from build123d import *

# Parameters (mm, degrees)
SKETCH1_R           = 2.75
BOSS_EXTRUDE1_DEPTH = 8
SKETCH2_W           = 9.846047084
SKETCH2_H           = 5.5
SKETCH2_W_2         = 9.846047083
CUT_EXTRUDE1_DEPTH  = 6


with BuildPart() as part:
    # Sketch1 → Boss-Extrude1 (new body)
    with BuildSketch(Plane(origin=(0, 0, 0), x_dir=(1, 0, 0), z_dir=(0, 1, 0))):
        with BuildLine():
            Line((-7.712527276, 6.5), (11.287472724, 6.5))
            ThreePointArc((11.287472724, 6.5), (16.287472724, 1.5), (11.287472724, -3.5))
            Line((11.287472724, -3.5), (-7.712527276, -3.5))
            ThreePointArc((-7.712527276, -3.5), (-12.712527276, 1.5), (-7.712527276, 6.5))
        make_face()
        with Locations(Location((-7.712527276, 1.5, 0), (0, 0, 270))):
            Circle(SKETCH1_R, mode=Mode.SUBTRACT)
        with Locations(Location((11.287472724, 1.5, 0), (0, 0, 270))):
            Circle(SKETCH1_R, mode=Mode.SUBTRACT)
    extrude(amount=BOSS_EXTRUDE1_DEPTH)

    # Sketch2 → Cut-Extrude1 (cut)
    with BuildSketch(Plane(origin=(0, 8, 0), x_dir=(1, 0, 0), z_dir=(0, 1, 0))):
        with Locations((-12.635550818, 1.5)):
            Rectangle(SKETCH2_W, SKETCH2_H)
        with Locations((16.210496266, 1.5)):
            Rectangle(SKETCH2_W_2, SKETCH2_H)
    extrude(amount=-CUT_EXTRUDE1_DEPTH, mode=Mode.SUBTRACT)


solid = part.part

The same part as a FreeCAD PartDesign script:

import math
import FreeCAD as App
import Part
import Sketcher

V = App.Vector

doc = App.newDocument("Part")
body = doc.addObject("PartDesign::Body", "Body")

sketch1 = body.newObject("Sketcher::SketchObject", "Sketch")
sketch1.AttachmentSupport = (doc.getObject("XZ_Plane"), [""])
sketch1.MapMode = "FlatFace"
sketch1.addGeometry(Part.LineSegment(V(11.3, -6.5, 0), V(-7.7, -6.5, 0)), False)
sketch1.addGeometry(Part.ArcOfCircle(Part.Circle(V(-7.7, -1.5, 0), V(0, 0, 1), 5), math.radians(90), math.radians(270)), False)
sketch1.addGeometry(Part.LineSegment(V(-7.7, 3.5, 0), V(11.3, 3.5, 0)), False)
sketch1.addGeometry(Part.ArcOfCircle(Part.Circle(V(11.3, -1.5, 0), V(0, 0, 1), 5), math.radians(-90), math.radians(90)), False)
sketch1.addGeometry(Part.Circle(V(11.3, -1.5, 0), V(0, 0, 1), 2.8), False)
sketch1.addGeometry(Part.Circle(V(-7.7, -1.5, 0), V(0, 0, 1), 2.8), False)
sketch1.addConstraint(Sketcher.Constraint("Tangent", 0, 2, 1, 2))
sketch1.addConstraint(Sketcher.Constraint("Tangent", 1, 1, 2, 1))
sketch1.addConstraint(Sketcher.Constraint("Tangent", 2, 2, 3, 2))
sketch1.addConstraint(Sketcher.Constraint("Tangent", 3, 1, 0, 1))
sketch1.addConstraint(Sketcher.Constraint("Horizontal", 0))
sketch1.addConstraint(Sketcher.Constraint("Horizontal", 2))
sketch1.addConstraint(Sketcher.Constraint("Coincident", 4, 3, 3, 3))
sketch1.addConstraint(Sketcher.Constraint("Coincident", 5, 3, 1, 3))
sketch1.addConstraint(Sketcher.Constraint("Equal", 4, 5))
sketch1.addConstraint(Sketcher.Constraint("Radius", 1, 5.0))
sketch1.addConstraint(Sketcher.Constraint("Diameter", 4, 5.5))
sketch1.addConstraint(Sketcher.Constraint("DistanceX", 0, 2, 0, 1, 19.0))
sketch1.addConstraint(Sketcher.Constraint("DistanceY", 1, 3, -1, 1, 1.5))
sketch1.addConstraint(Sketcher.Constraint("DistanceX", 1, 3, -1, 1, 7.712527))
pad1 = body.newObject("PartDesign::Pad", "Pad")
pad1.Profile = sketch1
pad1.Length = 8
pad1.Reversed = True

sketch2 = body.newObject("Sketcher::SketchObject", "Sketch001")
sketch2.AttachmentSupport = (doc.getObject("XZ_Plane"), [""])
sketch2.MapMode = "FlatFace"
sketch2.AttachmentOffset = App.Placement(V(0, 0, -8), App.Rotation())
sketch2.addGeometry(Part.LineSegment(V(-18, -4, 0), V(-18, 1, 0)), False)
sketch2.addGeometry(Part.LineSegment(V(-18, 1, 0), V(-8, 1, 0)), False)
sketch2.addGeometry(Part.LineSegment(V(-8, 1, 0), V(-8, -4, 0)), False)
sketch2.addGeometry(Part.LineSegment(V(-8, -4, 0), V(-18, -4, 0)), False)
sketch2.addGeometry(Part.LineSegment(V(11, -4, 0), V(11, 1, 0)), False)
sketch2.addGeometry(Part.LineSegment(V(11, 1, 0), V(21, 1, 0)), False)
sketch2.addGeometry(Part.LineSegment(V(21, 1, 0), V(21, -4, 0)), False)
sketch2.addGeometry(Part.LineSegment(V(21, -4, 0), V(11, -4, 0)), False)
sketch2.addConstraint(Sketcher.Constraint("Coincident", 0, 2, 1, 1))
sketch2.addConstraint(Sketcher.Constraint("Coincident", 1, 2, 2, 1))
sketch2.addConstraint(Sketcher.Constraint("Coincident", 2, 2, 3, 1))
sketch2.addConstraint(Sketcher.Constraint("Coincident", 3, 2, 0, 1))
sketch2.addConstraint(Sketcher.Constraint("Coincident", 4, 2, 5, 1))
sketch2.addConstraint(Sketcher.Constraint("Coincident", 5, 2, 6, 1))
sketch2.addConstraint(Sketcher.Constraint("Coincident", 6, 2, 7, 1))
sketch2.addConstraint(Sketcher.Constraint("Coincident", 7, 2, 4, 1))
sketch2.addConstraint(Sketcher.Constraint("Vertical", 0))
sketch2.addConstraint(Sketcher.Constraint("Horizontal", 1))
sketch2.addConstraint(Sketcher.Constraint("Vertical", 2))
sketch2.addConstraint(Sketcher.Constraint("Horizontal", 3))
sketch2.addConstraint(Sketcher.Constraint("Vertical", 4))
sketch2.addConstraint(Sketcher.Constraint("Horizontal", 5))
sketch2.addConstraint(Sketcher.Constraint("Vertical", 6))
sketch2.addConstraint(Sketcher.Constraint("Horizontal", 7))
sketch2.addConstraint(Sketcher.Constraint("Horizontal", 1, 2, 4, 2))
sketch2.addConstraint(Sketcher.Constraint("Horizontal", 3, 2, 6, 2))
sketch2.addConstraint(Sketcher.Constraint("Equal", 3, 5))
sketch2.addConstraint(Sketcher.Constraint("DistanceY", 0, 1, 0, 2, 5.5))
sketch2.addConstraint(Sketcher.Constraint("DistanceX", 1, 2, 4, 2, 19.0))
sketch2.addConstraint(Sketcher.Constraint("DistanceY", -1, 1, 0, 2, 1.25))
sketch2.addConstraint(Sketcher.Constraint("DistanceX", 1, 1, 1, 2, 9.846047))
sketch2.addConstraint(Sketcher.Constraint("DistanceX", -1, 1, 5, 2, 21.13352))
pocket1 = body.newObject("PartDesign::Pocket", "Pocket")
pocket1.Profile = sketch2
pocket1.Length = 6
pocket1.Reversed = True

doc.recompute()
